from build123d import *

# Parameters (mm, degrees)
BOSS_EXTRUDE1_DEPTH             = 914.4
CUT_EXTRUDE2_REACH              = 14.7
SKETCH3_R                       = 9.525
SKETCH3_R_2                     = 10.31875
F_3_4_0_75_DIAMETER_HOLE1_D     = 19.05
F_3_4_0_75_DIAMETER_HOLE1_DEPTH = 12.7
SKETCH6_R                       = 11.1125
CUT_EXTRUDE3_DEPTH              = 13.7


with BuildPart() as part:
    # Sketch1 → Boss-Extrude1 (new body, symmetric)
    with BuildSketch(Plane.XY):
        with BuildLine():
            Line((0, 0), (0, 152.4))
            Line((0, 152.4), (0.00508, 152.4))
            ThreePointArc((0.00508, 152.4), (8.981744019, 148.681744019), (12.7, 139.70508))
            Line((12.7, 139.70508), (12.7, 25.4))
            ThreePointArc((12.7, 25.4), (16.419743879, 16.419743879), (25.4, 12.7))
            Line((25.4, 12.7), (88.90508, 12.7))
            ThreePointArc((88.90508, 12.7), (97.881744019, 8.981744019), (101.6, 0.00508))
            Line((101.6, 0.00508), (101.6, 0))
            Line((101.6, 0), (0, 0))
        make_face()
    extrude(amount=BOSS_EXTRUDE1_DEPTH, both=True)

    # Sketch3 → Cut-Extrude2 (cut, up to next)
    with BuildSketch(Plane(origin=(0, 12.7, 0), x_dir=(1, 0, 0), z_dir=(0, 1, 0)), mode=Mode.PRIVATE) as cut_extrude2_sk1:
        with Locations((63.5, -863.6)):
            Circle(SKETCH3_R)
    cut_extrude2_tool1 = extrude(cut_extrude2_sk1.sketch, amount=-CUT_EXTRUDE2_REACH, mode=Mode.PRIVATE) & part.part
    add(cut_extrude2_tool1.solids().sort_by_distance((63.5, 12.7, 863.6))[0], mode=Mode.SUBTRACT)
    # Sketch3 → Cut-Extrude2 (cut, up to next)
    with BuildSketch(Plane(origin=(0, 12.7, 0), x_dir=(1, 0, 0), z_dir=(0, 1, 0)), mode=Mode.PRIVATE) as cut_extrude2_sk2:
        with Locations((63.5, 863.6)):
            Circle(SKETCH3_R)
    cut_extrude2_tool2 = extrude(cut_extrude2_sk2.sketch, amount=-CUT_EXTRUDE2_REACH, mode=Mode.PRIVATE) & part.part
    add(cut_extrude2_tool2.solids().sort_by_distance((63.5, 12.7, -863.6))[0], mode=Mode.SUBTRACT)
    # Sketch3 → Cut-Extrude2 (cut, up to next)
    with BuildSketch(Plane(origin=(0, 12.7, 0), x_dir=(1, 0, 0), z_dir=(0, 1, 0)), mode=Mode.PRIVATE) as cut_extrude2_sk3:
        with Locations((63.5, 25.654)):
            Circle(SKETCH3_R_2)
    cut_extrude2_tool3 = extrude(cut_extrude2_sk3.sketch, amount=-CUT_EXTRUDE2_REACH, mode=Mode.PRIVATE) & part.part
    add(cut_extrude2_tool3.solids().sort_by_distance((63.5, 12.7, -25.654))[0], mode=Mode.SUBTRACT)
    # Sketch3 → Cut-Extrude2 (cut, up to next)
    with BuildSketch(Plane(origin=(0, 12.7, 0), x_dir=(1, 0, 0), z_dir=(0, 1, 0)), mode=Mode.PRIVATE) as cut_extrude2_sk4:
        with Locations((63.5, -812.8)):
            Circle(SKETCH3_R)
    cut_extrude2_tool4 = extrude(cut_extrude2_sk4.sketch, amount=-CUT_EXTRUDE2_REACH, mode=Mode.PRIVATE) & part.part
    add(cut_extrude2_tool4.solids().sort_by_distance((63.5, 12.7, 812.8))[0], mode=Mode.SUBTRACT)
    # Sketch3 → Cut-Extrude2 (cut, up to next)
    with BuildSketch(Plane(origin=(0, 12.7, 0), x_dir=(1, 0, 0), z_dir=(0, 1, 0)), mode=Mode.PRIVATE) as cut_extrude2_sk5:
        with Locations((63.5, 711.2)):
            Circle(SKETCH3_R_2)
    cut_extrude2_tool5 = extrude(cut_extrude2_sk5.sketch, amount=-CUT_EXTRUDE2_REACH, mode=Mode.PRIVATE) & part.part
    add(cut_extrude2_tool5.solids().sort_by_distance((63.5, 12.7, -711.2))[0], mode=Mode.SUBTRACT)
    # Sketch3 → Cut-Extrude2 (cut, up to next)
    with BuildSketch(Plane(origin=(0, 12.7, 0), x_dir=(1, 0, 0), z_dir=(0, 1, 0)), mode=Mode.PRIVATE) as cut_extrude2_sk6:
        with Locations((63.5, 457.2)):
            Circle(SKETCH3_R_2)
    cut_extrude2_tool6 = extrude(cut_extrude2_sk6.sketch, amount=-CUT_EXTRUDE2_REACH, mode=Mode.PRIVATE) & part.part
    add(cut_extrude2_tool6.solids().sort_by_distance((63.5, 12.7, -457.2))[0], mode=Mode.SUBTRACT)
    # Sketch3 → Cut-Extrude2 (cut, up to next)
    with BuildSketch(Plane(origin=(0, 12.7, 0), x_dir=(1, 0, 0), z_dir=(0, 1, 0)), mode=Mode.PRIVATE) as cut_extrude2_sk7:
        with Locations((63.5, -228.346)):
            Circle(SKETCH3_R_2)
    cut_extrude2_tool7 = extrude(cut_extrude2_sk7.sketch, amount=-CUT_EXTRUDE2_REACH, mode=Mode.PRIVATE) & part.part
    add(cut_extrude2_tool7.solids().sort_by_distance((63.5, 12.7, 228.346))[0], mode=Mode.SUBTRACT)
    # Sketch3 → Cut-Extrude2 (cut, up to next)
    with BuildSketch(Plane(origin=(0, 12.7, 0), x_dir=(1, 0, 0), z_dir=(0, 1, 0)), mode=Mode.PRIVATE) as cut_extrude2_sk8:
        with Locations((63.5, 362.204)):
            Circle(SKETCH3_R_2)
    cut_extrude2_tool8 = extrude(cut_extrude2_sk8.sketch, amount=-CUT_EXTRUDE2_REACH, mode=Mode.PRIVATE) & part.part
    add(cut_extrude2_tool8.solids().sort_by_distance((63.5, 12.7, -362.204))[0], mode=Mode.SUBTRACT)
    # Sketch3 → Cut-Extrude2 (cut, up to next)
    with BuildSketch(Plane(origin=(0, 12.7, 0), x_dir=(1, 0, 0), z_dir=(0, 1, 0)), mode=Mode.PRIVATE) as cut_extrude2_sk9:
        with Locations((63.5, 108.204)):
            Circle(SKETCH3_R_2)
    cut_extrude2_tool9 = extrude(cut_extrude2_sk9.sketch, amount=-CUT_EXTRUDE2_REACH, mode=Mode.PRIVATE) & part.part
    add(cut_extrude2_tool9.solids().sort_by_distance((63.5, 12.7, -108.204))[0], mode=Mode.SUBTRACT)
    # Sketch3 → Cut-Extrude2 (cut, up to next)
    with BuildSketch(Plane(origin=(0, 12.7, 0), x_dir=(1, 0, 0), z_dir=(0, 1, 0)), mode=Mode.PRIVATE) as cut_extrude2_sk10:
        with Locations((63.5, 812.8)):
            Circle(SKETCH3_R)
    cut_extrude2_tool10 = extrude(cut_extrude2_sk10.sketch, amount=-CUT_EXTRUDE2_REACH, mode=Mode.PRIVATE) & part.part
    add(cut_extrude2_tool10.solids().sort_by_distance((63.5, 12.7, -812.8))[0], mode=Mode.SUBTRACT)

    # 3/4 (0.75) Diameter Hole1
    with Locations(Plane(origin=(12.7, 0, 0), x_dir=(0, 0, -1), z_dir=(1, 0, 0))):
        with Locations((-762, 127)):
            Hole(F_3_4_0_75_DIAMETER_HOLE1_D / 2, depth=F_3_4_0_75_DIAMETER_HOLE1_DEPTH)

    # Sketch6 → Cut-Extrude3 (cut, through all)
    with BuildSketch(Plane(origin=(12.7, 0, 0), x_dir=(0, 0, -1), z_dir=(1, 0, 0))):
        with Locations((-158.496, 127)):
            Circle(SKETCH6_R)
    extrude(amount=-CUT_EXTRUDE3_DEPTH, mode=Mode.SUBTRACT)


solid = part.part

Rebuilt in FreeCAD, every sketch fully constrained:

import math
import FreeCAD as App
import Part
import Sketcher
from FreeCAD import Vector
Q = App.Units.Quantity

doc = App.newDocument("Part")
params = doc.addObject("Spreadsheet::Sheet", "Params")
for row, (alias, value) in enumerate([
    ("sketch1_radius", "0.5 in"),
    ("sketch1_width", "4 in"),
    ("sketch1_height", "6 in"),
    ("pad1_length", "72 in"),
    ("sketch2_diameter", "0.75 in"),
    ("sketch3_diameter", "0.75 in"),
    ("sketch4_diameter", "0.8125 in"),
    ("sketch5_diameter", "0.75 in"),
    ("sketch6_diameter", "0.8125 in"),
    ("sketch7_diameter", "0.8125 in"),
    ("sketch8_diameter", "0.8125 in"),
    ("sketch9_diameter", "0.8125 in"),
    ("sketch10_diameter", "0.8125 in"),
    ("sketch11_diameter", "0.75 in"),
    ("sketch12_diameter", "0.75 in"),
    ("hole_diameter", "0.75 in"),
    ("hole_depth", "0.5 in"),
    ("sketch13_diameter", "0.875 in"),
], start=1):
    params.set(f"A{row}", alias)
    params.set(f"B{row}", "=" + value)
    params.setAlias(f"B{row}", alias)

body = doc.addObject("PartDesign::Body", "Body")

# Sketch on XY plane
sketch1 = body.newObject("Sketcher::SketchObject", "Sketch")
sketch1.AttachmentSupport = (doc.getObject("XY_Plane"), [""])
sketch1.MapMode = "FlatFace"
sketch1.addGeometry([
    Part.LineSegment(Vector(0, 152.4, 0), Vector(0, 0, 0)),  # 0
    Part.LineSegment(Vector(0, 0, 0), Vector(101.6, 0, 0)),  # 1
    Part.LineSegment(Vector(101.6, 0, 0), Vector(101.6, 0.005, 0)),  # 2
    Part.ArcOfCircle(Part.Circle(Vector(88.905, 0.005, 0), Vector(0, 0, 1), 12.695), math.radians(0), math.radians(90)),  # 3
    Part.LineSegment(Vector(88.905, 12.7, 0), Vector(25.4, 12.7, 0)),  # 4
    Part.ArcOfCircle(Part.Circle(Vector(25.4, 25.4, 0), Vector(0, 0, 1), 12.7), math.radians(180), math.radians(270)),  # 5
    Part.LineSegment(Vector(12.7, 25.4, 0), Vector(12.7, 139.705, 0)),  # 6
    Part.ArcOfCircle(Part.Circle(Vector(0.005, 139.705, 0), Vector(0, 0, 1), 12.695), math.radians(0), math.radians(90)),  # 7
    Part.LineSegment(Vector(0.005, 152.4, 0), Vector(0, 152.4, 0)),  # 8
], False)
sketch1.addConstraint([
    Sketcher.Constraint("Coincident", 0, 2, 1, 1),
    Sketcher.Constraint("Coincident", 1, 2, 2, 1),
    Sketcher.Constraint("Tangent", 2, 2, 3, 1),
    Sketcher.Constraint("Tangent", 3, 2, 4, 1),
    Sketcher.Constraint("Tangent", 4, 2, 5, 2),
    Sketcher.Constraint("Tangent", 5, 1, 6, 1),
    Sketcher.Constraint("Tangent", 6, 2, 7, 1),
    Sketcher.Constraint("Tangent", 7, 2, 8, 1),
    Sketcher.Constraint("Coincident", 8, 2, 0, 1),
    Sketcher.Constraint("Vertical", 0),
    Sketcher.Constraint("Horizontal", 1),
    Sketcher.Constraint("Horizontal", 4),
    Sketcher.Constraint("Vertical", 6),
    Sketcher.Constraint("Coincident", 0, 2, -1, 1),
    Sketcher.Constraint("Equal", 3, 7),
    Sketcher.Constraint("Horizontal", 3, 3, 2, 2),
    Sketcher.Constraint("Equal", 8, 2),
    Sketcher.Constraint("Radius", 5, Q("0.5 in")),
    Sketcher.Constraint("DistanceX", 1, 1, 1, 2, Q("4 in")),
    Sketcher.Constraint("DistanceY", 0, 2, 0, 1, Q("6 in")),
    Sketcher.Constraint("DistanceX", -1, 1, 5, 3, Q("1 in")),
    Sketcher.Constraint("DistanceY", -1, 1, 5, 3, Q("1 in")),
    Sketcher.Constraint("Radius", 3, Q("0.4998 in")),
])
sketch1.setExpression("Constraints[17]", "Params.sketch1_radius")
sketch1.setExpression("Constraints[18]", "Params.sketch1_width")
sketch1.setExpression("Constraints[19]", "Params.sketch1_height")
pad1 = body.newObject("PartDesign::Pad", "Pad")
pad1.Profile = sketch1
pad1.setExpression("Length", "Params.pad1_length")
pad1.Midplane = True

# Sketch on XZ plane
sketch2 = body.newObject("Sketcher::SketchObject", "Sketch001")
sketch2.AttachmentSupport = (doc.getObject("XZ_Plane"), [""])
sketch2.MapMode = "FlatFace"
sketch2.AttachmentOffset = App.Placement(Vector(0, 0, -0.5 * 25.4), App.Rotation())
sketch2.addGeometry(Part.Circle(Vector(64, 864, 0), Vector(0, 0, 1), 10), False)
sketch2.addConstraint([
    Sketcher.Constraint("Diameter", 0, Q("0.75 in")),
    Sketcher.Constraint("DistanceY", -1, 1, 0, 3, Q("34 in")),
    Sketcher.Constraint("DistanceX", -1, 1, 0, 3, Q("2.5 in")),
])
sketch2.setExpression("Constraints[0]", "Params.sketch2_diameter")
pocket1 = body.newObject("PartDesign::Pocket", "Pocket")
pocket1.Profile = sketch2
pocket1.Type = "UpToFirst"
pocket1.Reversed = True

# Sketch on XZ plane
sketch3 = body.newObject("Sketcher::SketchObject", "Sketch002")
sketch3.AttachmentSupport = (doc.getObject("XZ_Plane"), [""])
sketch3.MapMode = "FlatFace"
sketch3.AttachmentOffset = App.Placement(Vector(0, 0, -0.5 * 25.4), App.Rotation())
sketch3.addGeometry(Part.Circle(Vector(64, -864, 0), Vector(0, 0, 1), 10), False)
sketch3.addConstraint([
    Sketcher.Constraint("Diameter", 0, Q("0.75 in")),
    Sketcher.Constraint("DistanceY", 0, 3, -1, 1, Q("34 in")),
    Sketcher.Constraint("DistanceX", -1, 1, 0, 3, Q("2.5 in")),
])
sketch3.setExpression("Constraints[0]", "Params.sketch3_diameter")
pocket2 = body.newObject("PartDesign::Pocket", "Pocket001")
pocket2.Profile = sketch3
pocket2.Type = "UpToFirst"
pocket2.Reversed = True

# Sketch on XZ plane
sketch4 = body.newObject("Sketcher::SketchObject", "Sketch003")
sketch4.AttachmentSupport = (doc.getObject("XZ_Plane"), [""])
sketch4.MapMode = "FlatFace"
sketch4.AttachmentOffset = App.Placement(Vector(0, 0, -0.5 * 25.4), App.Rotation())
sketch4.addGeometry(Part.Circle(Vector(64, -26, 0), Vector(0, 0, 1), 10), False)
sketch4.addConstraint([
    Sketcher.Constraint("Diameter", 0, Q("0.8125 in")),
    Sketcher.Constraint("DistanceX", -1, 1, 0, 3, Q("2.5 in")),
    Sketcher.Constraint("DistanceY", 0, 3, -1, 1, Q("1.01 in")),
])
sketch4.setExpression("Constraints[0]", "Params.sketch4_diameter")
pocket3 = body.newObject("PartDesign::Pocket", "Pocket002")
pocket3.Profile = sketch4
pocket3.Type = "UpToFirst"
pocket3.Reversed = True

# Sketch on XZ plane
sketch5 = body.newObject("Sketcher::SketchObject", "Sketch004")
sketch5.AttachmentSupport = (doc.getObject("XZ_Plane"), [""])
sketch5.MapMode = "FlatFace"
sketch5.AttachmentOffset = App.Placement(Vector(0, 0, -0.5 * 25.4), App.Rotation())
sketch5.addGeometry(Part.Circle(Vector(64, 813, 0), Vector(0, 0, 1), 10), False)
sketch5.addConstraint([
    Sketcher.Constraint("Diameter", 0, Q("0.75 in")),
    Sketcher.Constraint("DistanceY", -1, 1, 0, 3, Q("32 in")),
    Sketcher.Constraint("DistanceX", -1, 1, 0, 3, Q("2.5 in")),
])
sketch5.setExpression("Constraints[0]", "Params.sketch5_diameter")
pocket4 = body.newObject("PartDesign::Pocket", "Pocket003")
pocket4.Profile = sketch5
pocket4.Type = "UpToFirst"
pocket4.Reversed = True

# Sketch on XZ plane
sketch6 = body.newObject("Sketcher::SketchObject", "Sketch005")
sketch6.AttachmentSupport = (doc.getObject("XZ_Plane"), [""])
sketch6.MapMode = "FlatFace"
sketch6.AttachmentOffset = App.Placement(Vector(0, 0, -0.5 * 25.4), App.Rotation())
sketch6.addGeometry(Part.Circle(Vector(64, -711, 0), Vector(0, 0, 1), 10), False)
sketch6.addConstraint([
    Sketcher.Constraint("Diameter", 0, Q("0.8125 in")),
    Sketcher.Constraint("DistanceY", 0, 3, -1, 1, Q("28 in")),
    Sketcher.Constraint("DistanceX", -1, 1, 0, 3, Q("2.5 in")),
])
sketch6.setExpression("Constraints[0]", "Params.sketch6_diameter")
pocket5 = body.newObject("PartDesign::Pocket", "Pocket004")
pocket5.Profile = sketch6
pocket5.Type = "UpToFirst"
pocket5.Reversed = True

# Sketch on XZ plane
sketch7 = body.newObject("Sketcher::SketchObject", "Sketch006")
sketch7.AttachmentSupport = (doc.getObject("XZ_Plane"), [""])
sketch7.MapMode = "FlatFace"
sketch7.AttachmentOffset = App.Placement(Vector(0, 0, -0.5 * 25.4), App.Rotation())
sketch7.addGeometry(Part.Circle(Vector(64, -457, 0), Vector(0, 0, 1), 10), False)
sketch7.addConstraint([
    Sketcher.Constraint("Diameter", 0, Q("0.8125 in")),
    Sketcher.Constraint("DistanceY", 0, 3, -1, 1, Q("18 in")),
    Sketcher.Constraint("DistanceX", -1, 1, 0, 3, Q("2.5 in")),
])
sketch7.setExpression("Constraints[0]", "Params.sketch7_diameter")
pocket6 = body.newObject("PartDesign::Pocket", "Pocket005")
pocket6.Profile = sketch7
pocket6.Type = "UpToFirst"
pocket6.Reversed = True

# Sketch on XZ plane
sketch8 = body.newObject("Sketcher::SketchObject", "Sketch007")
sketch8.AttachmentSupport = (doc.getObject("XZ_Plane"), [""])
sketch8.MapMode = "FlatFace"
sketch8.AttachmentOffset = App.Placement(Vector(0, 0, -0.5 * 25.4), App.Rotation())
sketch8.addGeometry(Part.Circle(Vector(64, 228, 0), Vector(0, 0, 1), 10), False)
sketch8.addConstraint([
    Sketcher.Constraint("Diameter", 0, Q("0.8125 in")),
    Sketcher.Constraint("DistanceX", -1, 1, 0, 3, Q("2.5 in")),
    Sketcher.Constraint("DistanceY", -1, 1, 0, 3, Q("8.99 in")),
])
sketch8.setExpression("Constraints[0]", "Params.sketch8_diameter")
pocket7 = body.newObject("PartDesign::Pocket", "Pocket006")
pocket7.Profile = sketch8
pocket7.Type = "UpToFirst"
pocket7.Reversed = True

# Sketch on XZ plane
sketch9 = body.newObject("Sketcher::SketchObject", "Sketch008")
sketch9.AttachmentSupport = (doc.getObject("XZ_Plane"), [""])
sketch9.MapMode = "FlatFace"
sketch9.AttachmentOffset = App.Placement(Vector(0, 0, -0.5 * 25.4), App.Rotation())
sketch9.addGeometry(Part.Circle(Vector(64, -362, 0), Vector(0, 0, 1), 10), False)
sketch9.addConstraint([
    Sketcher.Constraint("Diameter", 0, Q("0.8125 in")),
    Sketcher.Constraint("DistanceX", -1, 1, 0, 3, Q("2.5 in")),
    Sketcher.Constraint("DistanceY", 0, 3, -1, 1, Q("14.26 in")),
])
sketch9.setExpression("Constraints[0]", "Params.sketch9_diameter")
pocket8 = body.newObject("PartDesign::Pocket", "Pocket007")
pocket8.Profile = sketch9
pocket8.Type = "UpToFirst"
pocket8.Reversed = True

# Sketch on XZ plane
sketch10 = body.newObject("Sketcher::SketchObject", "Sketch009")
sketch10.AttachmentSupport = (doc.getObject("XZ_Plane"), [""])
sketch10.MapMode = "FlatFace"
sketch10.AttachmentOffset = App.Placement(Vector(0, 0, -0.5 * 25.4), App.Rotation())
sketch10.addGeometry(Part.Circle(Vector(64, -108, 0), Vector(0, 0, 1), 10), False)
sketch10.addConstraint([
    Sketcher.Constraint("Diameter", 0, Q("0.8125 in")),
    Sketcher.Constraint("DistanceX", -1, 1, 0, 3, Q("2.5 in")),
    Sketcher.Constraint("DistanceY", 0, 3, -1, 1, Q("4.26 in")),
])
sketch10.setExpression("Constraints[0]", "Params.sketch10_diameter")
pocket9 = body.newObject("PartDesign::Pocket", "Pocket008")
pocket9.Profile = sketch10
pocket9.Type = "UpToFirst"
pocket9.Reversed = True

# Sketch on XZ plane
sketch11 = body.newObject("Sketcher::SketchObject", "Sketch010")
sketch11.AttachmentSupport = (doc.getObject("XZ_Plane"), [""])
sketch11.MapMode = "FlatFace"
sketch11.AttachmentOffset = App.Placement(Vector(0, 0, -0.5 * 25.4), App.Rotation())
sketch11.addGeometry(Part.Circle(Vector(64, -813, 0), Vector(0, 0, 1), 10), False)
sketch11.addConstraint([
    Sketcher.Constraint("Diameter", 0, Q("0.75 in")),
    Sketcher.Constraint("DistanceY", 0, 3, -1, 1, Q("32 in")),
    Sketcher.Constraint("DistanceX", -1, 1, 0, 3, Q("2.5 in")),
])
sketch11.setExpression("Constraints[0]", "Params.sketch11_diameter")
pocket10 = body.newObject("PartDesign::Pocket", "Pocket009")
pocket10.Profile = sketch11
pocket10.Type = "UpToFirst"
pocket10.Reversed = True

# Sketch on YZ plane
sketch12 = body.newObject("Sketcher::SketchObject", "Sketch011")
sketch12.AttachmentSupport = (doc.getObject("YZ_Plane"), [""])
sketch12.MapMode = "FlatFace"
sketch12.AttachmentOffset = App.Placement(Vector(0, 0, 0.5 * 25.4), App.Rotation())
sketch12.addGeometry(Part.Circle(Vector(127, 762, 0), Vector(0, 0, 1), 10), False)
sketch12.addConstraint([
    Sketcher.Constraint("Diameter", 0, Q("0.75 in")),
    Sketcher.Constraint("DistanceX", -1, 1, 0, 3, Q("5 in")),
    Sketcher.Constraint("DistanceY", -1, 1, 0, 3, Q("30 in")),
])
sketch12.setExpression("Constraints[0]", "Params.sketch12_diameter")
doc.recompute()
hole = body.newObject("PartDesign::Hole", "Hole")
hole.Profile = sketch12
hole.ThreadType = "None"
hole.setExpression("Diameter", "Params.hole_diameter")
hole.DepthType = "Dimension"
hole.setExpression("Depth", "Params.hole_depth")
hole.DrillPoint = "Flat"

# Sketch on YZ plane
sketch13 = body.newObject("Sketcher::SketchObject", "Sketch012")
sketch13.AttachmentSupport = (doc.getObject("YZ_Plane"), [""])
sketch13.MapMode = "FlatFace"
sketch13.AttachmentOffset = App.Placement(Vector(0, 0, 0.5 * 25.4), App.Rotation())
sketch13.addGeometry(Part.Circle(Vector(127, 158, 0), Vector(0, 0, 1), 11), False)
sketch13.addConstraint([
    Sketcher.Constraint("Diameter", 0, Q("0.875 in")),
    Sketcher.Constraint("DistanceX", -1, 1, 0, 3, Q("5 in")),
    Sketcher.Constraint("DistanceY", -1, 1, 0, 3, Q("6.24 in")),
])
sketch13.setExpression("Constraints[0]", "Params.sketch13_diameter")
pocket11 = body.newObject("PartDesign::Pocket", "Pocket010")
pocket11.Profile = sketch13
pocket11.Type = "ThroughAll"

doc.recompute()
